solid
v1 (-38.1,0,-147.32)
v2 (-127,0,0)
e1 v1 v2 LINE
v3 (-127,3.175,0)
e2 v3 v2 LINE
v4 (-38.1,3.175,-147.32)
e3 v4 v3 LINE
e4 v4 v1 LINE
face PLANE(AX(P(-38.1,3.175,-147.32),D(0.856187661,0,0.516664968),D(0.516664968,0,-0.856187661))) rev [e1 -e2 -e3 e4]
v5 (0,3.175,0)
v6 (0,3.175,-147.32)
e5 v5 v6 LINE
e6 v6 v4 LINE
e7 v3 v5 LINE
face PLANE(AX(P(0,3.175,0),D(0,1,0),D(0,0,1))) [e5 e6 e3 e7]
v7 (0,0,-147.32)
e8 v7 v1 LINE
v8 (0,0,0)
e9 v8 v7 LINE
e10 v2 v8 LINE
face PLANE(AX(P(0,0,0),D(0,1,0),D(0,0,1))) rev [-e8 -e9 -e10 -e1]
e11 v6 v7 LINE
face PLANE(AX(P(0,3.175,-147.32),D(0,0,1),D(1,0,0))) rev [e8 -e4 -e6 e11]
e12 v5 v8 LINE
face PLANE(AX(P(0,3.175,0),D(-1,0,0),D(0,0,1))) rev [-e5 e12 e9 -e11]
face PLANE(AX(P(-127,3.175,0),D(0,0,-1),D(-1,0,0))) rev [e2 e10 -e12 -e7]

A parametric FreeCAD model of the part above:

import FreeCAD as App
import Part
import Sketcher
Q = App.Units.Quantity


def add_polygon(sketch, points):
    """Adds a closed chain of lines whose ends are joined by coincident constraints."""
    first, n = sketch.GeometryCount, len(points)
    for a, b in zip(points, points[1:] + points[:1]):
        sketch.addGeometry(Part.LineSegment(App.Vector(*a, 0), App.Vector(*b, 0)), False)
    for i in range(n):
        sketch.addConstraint(Sketcher.Constraint("Coincident", first + i, 2, first + (i + 1) % n, 1))

doc = App.newDocument("Part")
body = doc.addObject("PartDesign::Body", "Body")

sketch1 = body.newObject("Sketcher::SketchObject", "Sketch")
sketch1.AttachmentSupport = (doc.getObject("XZ_Plane"), [""])
sketch1.MapMode = "FlatFace"
add_polygon(sketch1, [(0, 0), (0, -147), (-38, -147), (-127, 0)])
sketch1.addConstraint(Sketcher.Constraint("Vertical", 0))
sketch1.addConstraint(Sketcher.Constraint("Horizontal", 1))
sketch1.addConstraint(Sketcher.Constraint("Horizontal", 3))
sketch1.addConstraint(Sketcher.Constraint("Coincident", 3, 2, -1, 1))
sketch1.addConstraint(Sketcher.Constraint("DistanceX", 3, 1, 3, 2, Q("5 in")))
sketch1.addConstraint(Sketcher.Constraint("DistanceX", 1, 2, 1, 1, Q("1.5 in")))
sketch1.addConstraint(Sketcher.Constraint("DistanceY", 0, 2, 0, 1, Q("5.8 in")))
pad1 = body.newObject("PartDesign::Pad", "Pad")
pad1.Profile = sketch1
pad1.Length = Q("0.125 in")
pad1.Reversed = True

doc.recompute()
